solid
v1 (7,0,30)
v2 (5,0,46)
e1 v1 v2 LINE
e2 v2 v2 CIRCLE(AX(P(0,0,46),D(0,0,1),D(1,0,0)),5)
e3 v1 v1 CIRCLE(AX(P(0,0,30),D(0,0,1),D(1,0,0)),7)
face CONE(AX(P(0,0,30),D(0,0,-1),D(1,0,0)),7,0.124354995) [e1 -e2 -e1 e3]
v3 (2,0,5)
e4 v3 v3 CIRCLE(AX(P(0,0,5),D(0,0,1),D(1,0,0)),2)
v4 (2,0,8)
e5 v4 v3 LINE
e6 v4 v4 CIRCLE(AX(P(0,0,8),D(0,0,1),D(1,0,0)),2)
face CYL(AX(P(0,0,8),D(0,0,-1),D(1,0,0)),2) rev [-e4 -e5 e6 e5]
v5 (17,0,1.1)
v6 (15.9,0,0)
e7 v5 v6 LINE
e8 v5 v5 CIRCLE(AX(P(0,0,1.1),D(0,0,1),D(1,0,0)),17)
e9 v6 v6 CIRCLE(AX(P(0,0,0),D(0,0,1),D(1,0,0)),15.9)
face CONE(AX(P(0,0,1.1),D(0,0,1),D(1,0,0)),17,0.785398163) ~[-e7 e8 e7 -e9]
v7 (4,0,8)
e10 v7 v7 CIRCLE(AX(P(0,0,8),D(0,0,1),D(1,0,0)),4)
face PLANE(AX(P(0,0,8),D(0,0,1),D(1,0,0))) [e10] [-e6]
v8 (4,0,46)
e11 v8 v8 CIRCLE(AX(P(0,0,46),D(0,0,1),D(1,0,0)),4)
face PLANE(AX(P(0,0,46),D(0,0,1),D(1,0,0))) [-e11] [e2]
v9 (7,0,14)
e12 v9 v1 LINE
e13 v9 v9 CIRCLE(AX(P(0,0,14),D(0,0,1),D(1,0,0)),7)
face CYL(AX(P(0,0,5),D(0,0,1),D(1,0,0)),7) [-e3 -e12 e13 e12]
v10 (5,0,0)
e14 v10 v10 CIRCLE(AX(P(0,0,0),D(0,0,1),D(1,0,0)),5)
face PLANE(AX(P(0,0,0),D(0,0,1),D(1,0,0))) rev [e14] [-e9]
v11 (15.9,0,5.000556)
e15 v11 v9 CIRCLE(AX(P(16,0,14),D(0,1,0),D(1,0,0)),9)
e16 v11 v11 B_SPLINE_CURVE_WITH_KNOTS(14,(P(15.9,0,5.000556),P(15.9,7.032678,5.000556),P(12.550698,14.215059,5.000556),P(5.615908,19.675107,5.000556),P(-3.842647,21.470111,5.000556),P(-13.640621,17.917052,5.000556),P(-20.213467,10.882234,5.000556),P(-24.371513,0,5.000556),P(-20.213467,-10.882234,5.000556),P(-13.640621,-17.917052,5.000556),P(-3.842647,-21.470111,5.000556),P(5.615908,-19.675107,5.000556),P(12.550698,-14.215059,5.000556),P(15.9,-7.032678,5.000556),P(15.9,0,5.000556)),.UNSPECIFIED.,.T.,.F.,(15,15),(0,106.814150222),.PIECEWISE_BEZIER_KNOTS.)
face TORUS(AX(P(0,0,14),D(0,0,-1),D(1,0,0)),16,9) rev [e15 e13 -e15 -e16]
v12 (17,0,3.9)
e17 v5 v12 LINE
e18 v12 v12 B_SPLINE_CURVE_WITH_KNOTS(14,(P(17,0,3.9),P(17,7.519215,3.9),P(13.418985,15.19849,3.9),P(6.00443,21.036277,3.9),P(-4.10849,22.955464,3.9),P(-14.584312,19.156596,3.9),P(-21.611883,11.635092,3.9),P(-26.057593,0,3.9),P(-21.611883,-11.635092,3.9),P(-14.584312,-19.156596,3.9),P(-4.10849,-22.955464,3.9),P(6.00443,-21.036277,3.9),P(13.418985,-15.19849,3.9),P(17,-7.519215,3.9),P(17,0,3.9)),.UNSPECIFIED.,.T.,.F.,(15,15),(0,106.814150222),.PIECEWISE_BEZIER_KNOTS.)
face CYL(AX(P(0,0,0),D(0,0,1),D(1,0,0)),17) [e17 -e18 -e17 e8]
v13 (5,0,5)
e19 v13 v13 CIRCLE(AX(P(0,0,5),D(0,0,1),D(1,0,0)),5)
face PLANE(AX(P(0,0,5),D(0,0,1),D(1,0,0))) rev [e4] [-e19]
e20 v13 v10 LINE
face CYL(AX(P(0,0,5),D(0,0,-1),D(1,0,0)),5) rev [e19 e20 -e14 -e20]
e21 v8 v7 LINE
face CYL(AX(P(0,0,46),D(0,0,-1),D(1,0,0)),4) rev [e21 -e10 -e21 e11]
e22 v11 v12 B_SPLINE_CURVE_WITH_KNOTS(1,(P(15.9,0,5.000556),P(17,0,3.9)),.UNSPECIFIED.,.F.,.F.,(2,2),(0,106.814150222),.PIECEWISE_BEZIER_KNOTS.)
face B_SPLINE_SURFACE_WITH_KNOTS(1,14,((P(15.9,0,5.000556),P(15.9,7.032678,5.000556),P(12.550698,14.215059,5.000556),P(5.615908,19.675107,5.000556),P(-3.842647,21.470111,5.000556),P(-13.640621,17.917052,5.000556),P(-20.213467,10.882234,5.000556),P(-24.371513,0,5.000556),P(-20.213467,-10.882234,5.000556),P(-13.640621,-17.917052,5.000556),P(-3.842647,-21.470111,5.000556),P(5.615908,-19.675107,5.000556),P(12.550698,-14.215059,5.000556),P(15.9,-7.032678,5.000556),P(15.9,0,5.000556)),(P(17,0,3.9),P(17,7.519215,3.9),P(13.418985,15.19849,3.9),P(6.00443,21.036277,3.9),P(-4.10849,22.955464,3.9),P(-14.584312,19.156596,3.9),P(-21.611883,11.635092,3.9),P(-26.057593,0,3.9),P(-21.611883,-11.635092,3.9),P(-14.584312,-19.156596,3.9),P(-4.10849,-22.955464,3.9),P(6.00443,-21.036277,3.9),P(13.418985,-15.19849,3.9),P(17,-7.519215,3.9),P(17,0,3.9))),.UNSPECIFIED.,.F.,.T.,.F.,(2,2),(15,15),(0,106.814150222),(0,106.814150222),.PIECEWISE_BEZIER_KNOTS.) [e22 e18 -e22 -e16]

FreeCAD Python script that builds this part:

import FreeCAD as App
import Part
import Sketcher


def edges_at(feature, points):
    """Names of the edges that pass closest to the given points."""
    edges = feature.Shape.Edges
    near = lambda p: min(range(len(edges)), key=lambda i: edges[i].distToShape(Part.Vertex(*p))[0])
    return sorted({f"Edge{near(p) + 1}" for p in points})


def add_polygon(sketch, points):
    """Adds a closed chain of lines whose ends are joined by coincident constraints."""
    first, n = sketch.GeometryCount, len(points)
    for a, b in zip(points, points[1:] + points[:1]):
        sketch.addGeometry(Part.LineSegment(App.Vector(*a, 0), App.Vector(*b, 0)), False)
    for i in range(n):
        sketch.addConstraint(Sketcher.Constraint("Coincident", first + i, 2, first + (i + 1) % n, 1))

doc = App.newDocument("Part")
body = doc.addObject("PartDesign::Body", "Body")

sketch1 = body.newObject("Sketcher::SketchObject", "Sketch")
sketch1.AttachmentSupport = (doc.getObject("XZ_Plane"), [""])
sketch1.MapMode = "FlatFace"
add_polygon(sketch1, [(4, 46), (4, 8), (2, 8), (2, 5), (5, 5), (5, 0), (17, 0), (17, 5), (7, 5), (7, 30), (5, 46)])
sketch1.addConstraint([
    Sketcher.Constraint("Vertical", 0),
    Sketcher.Constraint("Horizontal", 1),
    Sketcher.Constraint("Vertical", 2),
    Sketcher.Constraint("Horizontal", 3),
    Sketcher.Constraint("Vertical", 4),
    Sketcher.Constraint("Horizontal", 5),
    Sketcher.Constraint("Vertical", 6),
    Sketcher.Constraint("Horizontal", 7),
    Sketcher.Constraint("Vertical", 8),
    Sketcher.Constraint("Horizontal", 10),
    Sketcher.Constraint("PointOnObject", 4, 2, -1),
    Sketcher.Constraint("Horizontal", 3, 2, 6, 2),
    Sketcher.Constraint("Vertical", 4, 2, 9, 2),
    Sketcher.Constraint("Equal", 3, 2),
    Sketcher.Constraint("DistanceX", 1, 2, 1, 1, 2.0),
    Sketcher.Constraint("DistanceX", 3, 1, 3, 2, 3.0),
    Sketcher.Constraint("DistanceX", 5, 1, 5, 2, 12.0),
    Sketcher.Constraint("DistanceX", 7, 2, 7, 1, 10.0),
    Sketcher.Constraint("DistanceY", 0, 2, 0, 1, 38.0),
    Sketcher.Constraint("DistanceY", 4, 2, 4, 1, 5.0),
    Sketcher.Constraint("DistanceY", 8, 1, 8, 2, 25.0),
    Sketcher.Constraint("DistanceX", -1, 1, 0, 2, 4.0),
])
revolution = body.newObject("PartDesign::Revolution", "Revolution")
revolution.Profile = sketch1
revolution.ReferenceAxis = (sketch1, ["V_Axis"])
revolution.Angle = 360
doc.recompute()

fillet = body.newObject("PartDesign::Fillet", "Fillet")
fillet.Base = (revolution, edges_at(revolution, [(-7, 0, 5)]))
fillet.Radius = 9
doc.recompute()

chamfer = body.newObject("PartDesign::Chamfer", "Chamfer")
chamfer.Base = (fillet, edges_at(fillet, [(-17, 0, 5), (-17, 0, 0)]))
chamfer.Size = 1.1

doc.recompute()
